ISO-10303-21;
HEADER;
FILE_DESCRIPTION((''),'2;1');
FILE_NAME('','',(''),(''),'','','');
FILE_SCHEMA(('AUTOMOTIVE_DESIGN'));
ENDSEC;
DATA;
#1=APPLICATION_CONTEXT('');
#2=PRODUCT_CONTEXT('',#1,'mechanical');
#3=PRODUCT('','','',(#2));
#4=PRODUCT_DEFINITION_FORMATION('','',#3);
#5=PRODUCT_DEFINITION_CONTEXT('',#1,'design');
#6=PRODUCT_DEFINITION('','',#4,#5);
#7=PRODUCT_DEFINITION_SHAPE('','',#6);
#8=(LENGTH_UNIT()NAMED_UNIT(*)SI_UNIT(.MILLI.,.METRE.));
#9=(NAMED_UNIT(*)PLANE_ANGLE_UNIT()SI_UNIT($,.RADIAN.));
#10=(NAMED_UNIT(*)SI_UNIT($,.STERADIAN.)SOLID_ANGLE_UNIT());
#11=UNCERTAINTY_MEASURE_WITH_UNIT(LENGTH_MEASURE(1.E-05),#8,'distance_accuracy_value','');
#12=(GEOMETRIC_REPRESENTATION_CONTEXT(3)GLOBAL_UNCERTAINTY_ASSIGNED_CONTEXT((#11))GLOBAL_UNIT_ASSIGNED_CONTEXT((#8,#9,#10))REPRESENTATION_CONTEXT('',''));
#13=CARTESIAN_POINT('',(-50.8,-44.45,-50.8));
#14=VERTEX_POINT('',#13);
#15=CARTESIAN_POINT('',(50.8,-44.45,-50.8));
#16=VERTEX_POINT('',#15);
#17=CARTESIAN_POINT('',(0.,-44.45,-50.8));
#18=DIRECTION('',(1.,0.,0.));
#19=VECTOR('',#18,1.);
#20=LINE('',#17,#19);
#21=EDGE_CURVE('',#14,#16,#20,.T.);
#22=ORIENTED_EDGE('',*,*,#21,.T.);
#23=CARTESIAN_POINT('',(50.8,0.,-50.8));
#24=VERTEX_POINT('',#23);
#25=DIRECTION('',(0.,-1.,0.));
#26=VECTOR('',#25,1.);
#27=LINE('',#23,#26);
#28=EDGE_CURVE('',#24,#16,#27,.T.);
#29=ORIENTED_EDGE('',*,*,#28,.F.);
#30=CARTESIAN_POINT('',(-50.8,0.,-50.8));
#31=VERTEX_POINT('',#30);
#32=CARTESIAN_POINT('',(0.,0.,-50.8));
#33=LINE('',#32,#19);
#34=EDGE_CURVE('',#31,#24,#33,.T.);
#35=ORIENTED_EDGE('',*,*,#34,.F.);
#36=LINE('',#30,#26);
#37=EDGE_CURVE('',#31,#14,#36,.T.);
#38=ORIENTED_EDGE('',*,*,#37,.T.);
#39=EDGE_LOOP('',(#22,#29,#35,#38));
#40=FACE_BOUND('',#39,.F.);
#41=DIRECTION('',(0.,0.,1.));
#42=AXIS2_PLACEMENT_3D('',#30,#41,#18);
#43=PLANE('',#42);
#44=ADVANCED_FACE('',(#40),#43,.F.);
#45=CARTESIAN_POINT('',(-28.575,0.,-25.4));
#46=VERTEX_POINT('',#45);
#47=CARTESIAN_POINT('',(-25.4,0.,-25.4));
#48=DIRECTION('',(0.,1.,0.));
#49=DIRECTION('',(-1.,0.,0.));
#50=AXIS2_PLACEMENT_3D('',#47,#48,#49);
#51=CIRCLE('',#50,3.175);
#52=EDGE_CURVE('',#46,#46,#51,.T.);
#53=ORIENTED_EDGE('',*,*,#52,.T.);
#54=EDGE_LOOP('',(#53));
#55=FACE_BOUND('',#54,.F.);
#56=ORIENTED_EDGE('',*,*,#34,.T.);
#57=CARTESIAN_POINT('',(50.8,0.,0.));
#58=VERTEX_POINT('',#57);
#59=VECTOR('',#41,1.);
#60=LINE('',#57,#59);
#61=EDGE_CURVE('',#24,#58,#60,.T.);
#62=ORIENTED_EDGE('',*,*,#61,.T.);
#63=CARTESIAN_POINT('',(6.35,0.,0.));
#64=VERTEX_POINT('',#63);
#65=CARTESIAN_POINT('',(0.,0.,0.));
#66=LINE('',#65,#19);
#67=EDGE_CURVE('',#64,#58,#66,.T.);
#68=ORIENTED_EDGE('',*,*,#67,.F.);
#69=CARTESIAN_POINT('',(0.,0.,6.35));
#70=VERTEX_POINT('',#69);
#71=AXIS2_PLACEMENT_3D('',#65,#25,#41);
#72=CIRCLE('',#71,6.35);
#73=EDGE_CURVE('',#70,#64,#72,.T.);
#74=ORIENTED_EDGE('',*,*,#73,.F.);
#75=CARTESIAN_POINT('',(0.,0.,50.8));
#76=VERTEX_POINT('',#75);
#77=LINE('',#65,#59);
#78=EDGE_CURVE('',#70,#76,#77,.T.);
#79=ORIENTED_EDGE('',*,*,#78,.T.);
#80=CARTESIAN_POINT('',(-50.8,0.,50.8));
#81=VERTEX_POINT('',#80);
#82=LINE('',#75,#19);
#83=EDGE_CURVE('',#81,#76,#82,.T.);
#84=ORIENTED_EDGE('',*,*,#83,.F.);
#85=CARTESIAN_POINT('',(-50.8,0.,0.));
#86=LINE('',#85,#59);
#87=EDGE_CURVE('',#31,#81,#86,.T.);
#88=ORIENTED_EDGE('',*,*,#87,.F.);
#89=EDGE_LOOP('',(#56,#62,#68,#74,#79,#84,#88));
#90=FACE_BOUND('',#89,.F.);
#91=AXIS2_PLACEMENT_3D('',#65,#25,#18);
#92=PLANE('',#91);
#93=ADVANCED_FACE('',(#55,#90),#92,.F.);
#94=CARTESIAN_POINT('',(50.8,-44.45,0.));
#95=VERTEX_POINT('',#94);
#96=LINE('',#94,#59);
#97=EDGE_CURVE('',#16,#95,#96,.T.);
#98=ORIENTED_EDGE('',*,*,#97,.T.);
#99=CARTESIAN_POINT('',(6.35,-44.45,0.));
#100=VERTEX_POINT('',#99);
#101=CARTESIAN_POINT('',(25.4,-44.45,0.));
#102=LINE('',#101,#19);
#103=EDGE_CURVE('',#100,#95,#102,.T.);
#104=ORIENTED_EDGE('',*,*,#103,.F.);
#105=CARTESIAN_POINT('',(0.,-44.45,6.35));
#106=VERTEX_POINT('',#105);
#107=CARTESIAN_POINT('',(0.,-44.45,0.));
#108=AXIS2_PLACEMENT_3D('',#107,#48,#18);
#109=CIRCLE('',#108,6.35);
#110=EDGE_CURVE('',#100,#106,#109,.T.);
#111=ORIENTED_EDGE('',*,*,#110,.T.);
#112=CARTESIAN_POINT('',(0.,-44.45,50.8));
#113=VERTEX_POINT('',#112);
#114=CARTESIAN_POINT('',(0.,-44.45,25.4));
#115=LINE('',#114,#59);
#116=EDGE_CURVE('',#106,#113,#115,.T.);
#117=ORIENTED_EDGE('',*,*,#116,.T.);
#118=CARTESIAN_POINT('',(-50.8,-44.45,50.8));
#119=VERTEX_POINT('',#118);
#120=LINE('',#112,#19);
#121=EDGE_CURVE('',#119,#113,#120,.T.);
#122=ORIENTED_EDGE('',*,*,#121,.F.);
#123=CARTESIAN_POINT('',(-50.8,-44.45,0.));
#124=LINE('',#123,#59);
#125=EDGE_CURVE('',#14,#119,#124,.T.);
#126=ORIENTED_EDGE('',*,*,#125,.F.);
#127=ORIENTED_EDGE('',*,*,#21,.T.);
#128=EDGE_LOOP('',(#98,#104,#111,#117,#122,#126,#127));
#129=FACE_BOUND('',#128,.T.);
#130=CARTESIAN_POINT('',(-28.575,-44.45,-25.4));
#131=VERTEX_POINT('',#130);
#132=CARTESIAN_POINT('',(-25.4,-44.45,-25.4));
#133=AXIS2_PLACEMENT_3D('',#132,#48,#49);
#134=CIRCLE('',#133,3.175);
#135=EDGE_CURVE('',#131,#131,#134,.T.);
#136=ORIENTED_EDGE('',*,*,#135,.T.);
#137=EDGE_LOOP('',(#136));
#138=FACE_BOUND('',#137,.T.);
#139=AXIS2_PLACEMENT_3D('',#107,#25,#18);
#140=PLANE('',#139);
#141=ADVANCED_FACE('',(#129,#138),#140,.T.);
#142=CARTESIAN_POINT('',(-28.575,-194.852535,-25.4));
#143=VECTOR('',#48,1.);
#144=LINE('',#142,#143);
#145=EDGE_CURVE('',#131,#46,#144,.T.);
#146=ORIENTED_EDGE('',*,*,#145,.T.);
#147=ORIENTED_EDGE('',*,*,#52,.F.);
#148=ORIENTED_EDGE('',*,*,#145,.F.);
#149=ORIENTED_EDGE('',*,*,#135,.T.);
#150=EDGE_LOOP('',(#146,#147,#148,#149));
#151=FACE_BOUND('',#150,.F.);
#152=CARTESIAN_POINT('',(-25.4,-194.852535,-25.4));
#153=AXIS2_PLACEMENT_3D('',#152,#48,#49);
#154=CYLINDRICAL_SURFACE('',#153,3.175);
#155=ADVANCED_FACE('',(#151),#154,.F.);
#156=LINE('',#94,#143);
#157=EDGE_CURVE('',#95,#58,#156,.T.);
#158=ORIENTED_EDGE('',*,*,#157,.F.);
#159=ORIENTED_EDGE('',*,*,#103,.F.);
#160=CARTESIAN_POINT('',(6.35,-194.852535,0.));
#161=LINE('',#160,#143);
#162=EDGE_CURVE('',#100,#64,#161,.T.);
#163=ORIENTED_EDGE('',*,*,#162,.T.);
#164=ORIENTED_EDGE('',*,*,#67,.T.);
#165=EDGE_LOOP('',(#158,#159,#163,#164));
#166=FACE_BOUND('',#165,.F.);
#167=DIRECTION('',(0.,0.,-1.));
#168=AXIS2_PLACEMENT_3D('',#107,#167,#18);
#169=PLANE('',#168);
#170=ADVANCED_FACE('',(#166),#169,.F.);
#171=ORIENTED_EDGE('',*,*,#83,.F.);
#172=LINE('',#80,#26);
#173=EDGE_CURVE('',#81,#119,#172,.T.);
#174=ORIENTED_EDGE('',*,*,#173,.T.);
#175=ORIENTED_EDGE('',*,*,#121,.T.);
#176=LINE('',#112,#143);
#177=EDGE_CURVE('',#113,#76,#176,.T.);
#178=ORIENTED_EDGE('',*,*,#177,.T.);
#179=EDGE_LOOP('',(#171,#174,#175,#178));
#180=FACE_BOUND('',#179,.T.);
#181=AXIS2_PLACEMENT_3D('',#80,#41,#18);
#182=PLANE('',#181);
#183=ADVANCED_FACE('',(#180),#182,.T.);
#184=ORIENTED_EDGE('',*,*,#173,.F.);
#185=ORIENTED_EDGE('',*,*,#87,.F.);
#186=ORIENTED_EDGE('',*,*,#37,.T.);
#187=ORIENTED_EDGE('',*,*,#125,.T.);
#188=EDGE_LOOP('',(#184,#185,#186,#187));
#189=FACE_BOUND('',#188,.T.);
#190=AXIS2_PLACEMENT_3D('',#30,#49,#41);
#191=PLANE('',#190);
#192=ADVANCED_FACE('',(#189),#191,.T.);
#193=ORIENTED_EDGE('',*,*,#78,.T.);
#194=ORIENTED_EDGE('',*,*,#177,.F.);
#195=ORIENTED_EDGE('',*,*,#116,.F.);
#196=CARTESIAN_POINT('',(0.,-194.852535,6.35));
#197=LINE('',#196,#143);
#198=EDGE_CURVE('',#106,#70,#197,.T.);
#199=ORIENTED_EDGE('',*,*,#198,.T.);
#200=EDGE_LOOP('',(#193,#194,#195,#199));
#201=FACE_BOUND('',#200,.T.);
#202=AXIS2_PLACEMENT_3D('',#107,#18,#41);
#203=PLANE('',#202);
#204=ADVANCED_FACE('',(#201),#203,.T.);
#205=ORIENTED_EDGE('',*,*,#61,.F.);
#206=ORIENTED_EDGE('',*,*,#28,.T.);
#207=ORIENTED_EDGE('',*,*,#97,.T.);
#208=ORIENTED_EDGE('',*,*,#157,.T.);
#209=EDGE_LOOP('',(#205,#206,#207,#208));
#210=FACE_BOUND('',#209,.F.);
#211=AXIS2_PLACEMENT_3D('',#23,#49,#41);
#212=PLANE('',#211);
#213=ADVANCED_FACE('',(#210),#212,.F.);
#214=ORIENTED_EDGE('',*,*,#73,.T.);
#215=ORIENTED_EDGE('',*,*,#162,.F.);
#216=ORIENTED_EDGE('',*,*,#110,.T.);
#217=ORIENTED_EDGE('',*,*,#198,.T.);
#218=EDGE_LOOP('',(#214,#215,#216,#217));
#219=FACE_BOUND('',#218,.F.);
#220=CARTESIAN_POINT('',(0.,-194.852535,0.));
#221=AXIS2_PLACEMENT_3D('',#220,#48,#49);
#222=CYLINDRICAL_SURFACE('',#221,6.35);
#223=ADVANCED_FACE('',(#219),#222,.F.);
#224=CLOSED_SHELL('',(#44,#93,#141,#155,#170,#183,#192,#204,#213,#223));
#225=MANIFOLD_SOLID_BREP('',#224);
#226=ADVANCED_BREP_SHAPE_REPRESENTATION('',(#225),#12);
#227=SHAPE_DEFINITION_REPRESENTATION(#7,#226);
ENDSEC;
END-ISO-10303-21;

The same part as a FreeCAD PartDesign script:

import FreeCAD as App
import Part
import Sketcher
from FreeCAD import Vector
Q = App.Units.Quantity

doc = App.newDocument("Part")
body = doc.addObject("PartDesign::Body", "Body")

# Sketch on XZ plane
sketch1 = body.newObject("Sketcher::SketchObject", "Sketch")
sketch1.AttachmentSupport = (doc.getObject("XZ_Plane"), [""])
sketch1.MapMode = "FlatFace"
sketch1.addGeometry(Part.LineSegment(Vector(-51, 51, 0), Vector(-51, -51, 0)), False)
sketch1.addGeometry(Part.LineSegment(Vector(-51, -51, 0), Vector(51, -51, 0)), False)
sketch1.addGeometry(Part.LineSegment(Vector(51, -51, 0), Vector(51, 51, 0)), False)
sketch1.addGeometry(Part.LineSegment(Vector(51, 51, 0), Vector(-51, 51, 0)), False)
sketch1.addConstraint(Sketcher.Constraint("Coincident", 0, 2, 1, 1))
sketch1.addConstraint(Sketcher.Constraint("Coincident", 1, 2, 2, 1))
sketch1.addConstraint(Sketcher.Constraint("Coincident", 2, 2, 3, 1))
sketch1.addConstraint(Sketcher.Constraint("Coincident", 3, 2, 0, 1))
sketch1.addConstraint(Sketcher.Constraint("Vertical", 0))
sketch1.addConstraint(Sketcher.Constraint("Horizontal", 1))
sketch1.addConstraint(Sketcher.Constraint("Vertical", 2))
sketch1.addConstraint(Sketcher.Constraint("Horizontal", 3))
sketch1.addConstraint(Sketcher.Constraint("Symmetric", 0, 2, 2, 2, -1, 1))
sketch1.addConstraint(Sketcher.Constraint("Equal", 3, 0))
sketch1.addConstraint(Sketcher.Constraint("DistanceX", 1, 1, 1, 2, Q("4 in")))
pad1 = body.newObject("PartDesign::Pad", "Pad")
pad1.Profile = sketch1
pad1.Length = Q("1.75 in")

# Sketch on XZ plane
sketch2 = body.newObject("Sketcher::SketchObject", "Sketch001")
sketch2.AttachmentSupport = (doc.getObject("XZ_Plane"), [""])
sketch2.MapMode = "FlatFace"
sketch2.AttachmentOffset = App.Placement(Vector(0, 0, 1.75 * 25.4), App.Rotation())
sketch2.addGeometry(Part.Circle(Vector(0, 0, 0), Vector(0, 0, 1), 6), False)
sketch2.addConstraint(Sketcher.Constraint("Coincident", 0, 3, -1, 1))
sketch2.addConstraint(Sketcher.Constraint("Diameter", 0, Q("0.5 in")))
doc.recompute()
hole = body.newObject("PartDesign::Hole", "Hole")
hole.Profile = sketch2
hole.ThreadType = "None"
hole.Diameter = Q("0.5 in")
hole.DepthType = "ThroughAll"

# Sketch on XZ plane
sketch3 = body.newObject("Sketcher::SketchObject", "Sketch002")
sketch3.AttachmentSupport = (doc.getObject("XZ_Plane"), [""])
sketch3.MapMode = "FlatFace"
sketch3.AttachmentOffset = App.Placement(Vector(0, 0, 1.75 * 25.4), App.Rotation())
sketch3.addGeometry(Part.LineSegment(Vector(0, 51, 0), Vector(0, 0, 0)), False)
sketch3.addGeometry(Part.LineSegment(Vector(0, 0, 0), Vector(51, 0, 0)), False)
sketch3.addGeometry(Part.LineSegment(Vector(51, 0, 0), Vector(51, 51, 0)), False)
sketch3.addGeometry(Part.LineSegment(Vector(51, 51, 0), Vector(0, 51, 0)), False)
sketch3.addConstraint(Sketcher.Constraint("Coincident", 0, 2, 1, 1))
sketch3.addConstraint(Sketcher.Constraint("Coincident", 1, 2, 2, 1))
sketch3.addConstraint(Sketcher.Constraint("Coincident", 2, 2, 3, 1))
sketch3.addConstraint(Sketcher.Constraint("Coincident", 3, 2, 0, 1))
sketch3.addConstraint(Sketcher.Constraint("Vertical", 0))
sketch3.addConstraint(Sketcher.Constraint("Horizontal", 1))
sketch3.addConstraint(Sketcher.Constraint("Vertical", 2))
sketch3.addConstraint(Sketcher.Constraint("Horizontal", 3))
sketch3.addConstraint(Sketcher.Constraint("Coincident", 0, 2, -1, 1))
sketch3.addConstraint(Sketcher.Constraint("Equal", 3, 0))
sketch3.addConstraint(Sketcher.Constraint("DistanceX", 1, 1, 1, 2, Q("2 in")))
pocket1 = body.newObject("PartDesign::Pocket", "Pocket")
pocket1.Profile = sketch3
pocket1.Length = Q("3.5 in")

# Sketch on XZ plane
sketch4 = body.newObject("Sketcher::SketchObject", "Sketch003")
sketch4.AttachmentSupport = (doc.getObject("XZ_Plane"), [""])
sketch4.MapMode = "FlatFace"
sketch4.AttachmentOffset = App.Placement(Vector(0, 0, 1.75 * 25.4), App.Rotation())
sketch4.addGeometry(Part.Circle(Vector(-25.4, -25.4, 0), Vector(0, 0, 1), 3.2), False)
sketch4.addConstraint(Sketcher.Constraint("Diameter", 0, Q("0.25 in")))
sketch4.addConstraint(Sketcher.Constraint("DistanceX", 0, 3, -1, 1, Q("1 in")))
sketch4.addConstraint(Sketcher.Constraint("DistanceY", 0, 3, -1, 1, Q("1 in")))
doc.recompute()
hole2 = body.newObject("PartDesign::Hole", "Hole001")
hole2.Profile = sketch4
hole2.ThreadType = "None"
hole2.Diameter = Q("0.25 in")
hole2.DepthType = "ThroughAll"

doc.recompute()
